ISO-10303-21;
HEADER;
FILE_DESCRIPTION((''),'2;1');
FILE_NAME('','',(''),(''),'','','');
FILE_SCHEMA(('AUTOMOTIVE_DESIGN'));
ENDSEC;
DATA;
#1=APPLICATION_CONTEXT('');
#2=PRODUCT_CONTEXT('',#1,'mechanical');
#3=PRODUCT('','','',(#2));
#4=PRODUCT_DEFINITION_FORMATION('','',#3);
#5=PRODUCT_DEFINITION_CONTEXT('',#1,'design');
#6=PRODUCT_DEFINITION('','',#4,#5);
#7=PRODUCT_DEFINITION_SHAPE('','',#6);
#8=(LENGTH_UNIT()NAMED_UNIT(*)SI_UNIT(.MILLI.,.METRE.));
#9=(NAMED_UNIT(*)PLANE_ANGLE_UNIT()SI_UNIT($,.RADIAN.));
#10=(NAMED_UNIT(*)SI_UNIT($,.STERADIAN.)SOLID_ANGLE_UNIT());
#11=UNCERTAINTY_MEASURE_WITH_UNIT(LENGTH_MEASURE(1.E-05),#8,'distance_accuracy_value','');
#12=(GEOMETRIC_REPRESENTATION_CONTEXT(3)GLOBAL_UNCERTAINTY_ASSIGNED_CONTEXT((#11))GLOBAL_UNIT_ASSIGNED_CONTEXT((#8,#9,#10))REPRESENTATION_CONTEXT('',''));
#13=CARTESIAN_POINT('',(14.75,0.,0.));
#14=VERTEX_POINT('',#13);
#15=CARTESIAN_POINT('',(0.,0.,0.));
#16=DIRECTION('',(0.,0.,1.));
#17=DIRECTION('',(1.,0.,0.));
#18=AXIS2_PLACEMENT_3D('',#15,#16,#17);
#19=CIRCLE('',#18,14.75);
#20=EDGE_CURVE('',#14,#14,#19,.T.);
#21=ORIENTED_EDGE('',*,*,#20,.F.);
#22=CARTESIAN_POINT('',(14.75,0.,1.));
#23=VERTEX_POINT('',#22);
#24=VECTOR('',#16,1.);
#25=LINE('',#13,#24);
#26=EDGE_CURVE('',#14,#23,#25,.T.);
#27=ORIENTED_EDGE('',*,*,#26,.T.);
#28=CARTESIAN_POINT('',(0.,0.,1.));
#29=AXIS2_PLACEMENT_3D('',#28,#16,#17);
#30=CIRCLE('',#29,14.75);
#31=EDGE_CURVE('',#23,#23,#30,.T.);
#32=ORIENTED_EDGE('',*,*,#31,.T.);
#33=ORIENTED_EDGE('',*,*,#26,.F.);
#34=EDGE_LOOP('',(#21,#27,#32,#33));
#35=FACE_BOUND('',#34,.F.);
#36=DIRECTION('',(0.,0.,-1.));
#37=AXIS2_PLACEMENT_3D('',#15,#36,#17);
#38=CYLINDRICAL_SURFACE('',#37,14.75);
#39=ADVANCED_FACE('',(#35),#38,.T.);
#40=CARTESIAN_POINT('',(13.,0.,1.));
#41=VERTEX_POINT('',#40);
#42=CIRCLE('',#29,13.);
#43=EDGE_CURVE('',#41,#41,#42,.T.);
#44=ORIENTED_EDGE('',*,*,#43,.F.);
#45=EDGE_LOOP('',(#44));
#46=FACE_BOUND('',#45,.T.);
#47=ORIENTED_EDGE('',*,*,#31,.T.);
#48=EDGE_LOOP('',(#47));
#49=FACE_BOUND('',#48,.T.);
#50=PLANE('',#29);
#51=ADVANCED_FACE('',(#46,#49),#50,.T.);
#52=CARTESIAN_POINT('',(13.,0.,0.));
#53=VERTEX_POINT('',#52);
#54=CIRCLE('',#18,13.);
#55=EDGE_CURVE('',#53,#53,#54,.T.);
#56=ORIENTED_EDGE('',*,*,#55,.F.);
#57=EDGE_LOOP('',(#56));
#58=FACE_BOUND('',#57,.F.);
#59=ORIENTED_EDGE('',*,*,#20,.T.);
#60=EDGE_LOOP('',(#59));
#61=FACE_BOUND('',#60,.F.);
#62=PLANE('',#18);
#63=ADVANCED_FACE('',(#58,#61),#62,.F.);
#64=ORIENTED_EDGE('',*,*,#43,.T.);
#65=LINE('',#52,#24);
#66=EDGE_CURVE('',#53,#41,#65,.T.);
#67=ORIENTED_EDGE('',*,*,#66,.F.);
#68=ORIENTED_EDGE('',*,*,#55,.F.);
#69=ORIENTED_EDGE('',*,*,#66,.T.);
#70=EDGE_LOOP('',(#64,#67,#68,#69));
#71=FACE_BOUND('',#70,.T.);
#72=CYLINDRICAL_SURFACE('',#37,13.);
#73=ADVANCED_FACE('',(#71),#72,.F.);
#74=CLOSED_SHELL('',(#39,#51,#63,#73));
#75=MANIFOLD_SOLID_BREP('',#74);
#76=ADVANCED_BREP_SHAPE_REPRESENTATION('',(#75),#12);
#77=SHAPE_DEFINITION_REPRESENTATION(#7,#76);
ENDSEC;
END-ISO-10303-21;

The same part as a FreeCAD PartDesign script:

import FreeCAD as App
import Part
import Sketcher
from FreeCAD import Vector
Q = App.Units.Quantity

doc = App.newDocument("Part")
params = doc.addObject("Spreadsheet::Sheet", "Params")
for row, (alias, value) in enumerate([
    ("sketch1_diameter", "26 mm"),
    ("sketch1_diameter2", "29.5 mm"),
    ("pad1_length", "1 mm"),
], start=1):
    params.set(f"A{row}", alias)
    params.set(f"B{row}", "=" + value)
    params.setAlias(f"B{row}", alias)

body = doc.addObject("PartDesign::Body", "Body")

sketch1 = body.newObject("Sketcher::SketchObject", "Sketch")
sketch1.AttachmentSupport = (doc.getObject("XY_Plane"), [""])
sketch1.MapMode = "FlatFace"
sketch1.addGeometry([
    Part.Circle(Vector(0, 0, 0), Vector(0, 0, 1), 15),
    Part.Circle(Vector(0, 0, 0), Vector(0, 0, 1), 13),
], False)
sketch1.addConstraint([
    Sketcher.Constraint("Coincident", 0, 3, -1, 1),
    Sketcher.Constraint("Coincident", 1, 3, -1, 1),
    Sketcher.Constraint("Diameter", 1, Q("26 mm")),
    Sketcher.Constraint("Diameter", 0, Q("29.5 mm")),
])
sketch1.setExpression("Constraints[2]", "Params.sketch1_diameter")
sketch1.setExpression("Constraints[3]", "Params.sketch1_diameter2")
pad1 = body.newObject("PartDesign::Pad", "Pad")
pad1.Profile = sketch1
pad1.setExpression("Length", "Params.pad1_length")

doc.recompute()
